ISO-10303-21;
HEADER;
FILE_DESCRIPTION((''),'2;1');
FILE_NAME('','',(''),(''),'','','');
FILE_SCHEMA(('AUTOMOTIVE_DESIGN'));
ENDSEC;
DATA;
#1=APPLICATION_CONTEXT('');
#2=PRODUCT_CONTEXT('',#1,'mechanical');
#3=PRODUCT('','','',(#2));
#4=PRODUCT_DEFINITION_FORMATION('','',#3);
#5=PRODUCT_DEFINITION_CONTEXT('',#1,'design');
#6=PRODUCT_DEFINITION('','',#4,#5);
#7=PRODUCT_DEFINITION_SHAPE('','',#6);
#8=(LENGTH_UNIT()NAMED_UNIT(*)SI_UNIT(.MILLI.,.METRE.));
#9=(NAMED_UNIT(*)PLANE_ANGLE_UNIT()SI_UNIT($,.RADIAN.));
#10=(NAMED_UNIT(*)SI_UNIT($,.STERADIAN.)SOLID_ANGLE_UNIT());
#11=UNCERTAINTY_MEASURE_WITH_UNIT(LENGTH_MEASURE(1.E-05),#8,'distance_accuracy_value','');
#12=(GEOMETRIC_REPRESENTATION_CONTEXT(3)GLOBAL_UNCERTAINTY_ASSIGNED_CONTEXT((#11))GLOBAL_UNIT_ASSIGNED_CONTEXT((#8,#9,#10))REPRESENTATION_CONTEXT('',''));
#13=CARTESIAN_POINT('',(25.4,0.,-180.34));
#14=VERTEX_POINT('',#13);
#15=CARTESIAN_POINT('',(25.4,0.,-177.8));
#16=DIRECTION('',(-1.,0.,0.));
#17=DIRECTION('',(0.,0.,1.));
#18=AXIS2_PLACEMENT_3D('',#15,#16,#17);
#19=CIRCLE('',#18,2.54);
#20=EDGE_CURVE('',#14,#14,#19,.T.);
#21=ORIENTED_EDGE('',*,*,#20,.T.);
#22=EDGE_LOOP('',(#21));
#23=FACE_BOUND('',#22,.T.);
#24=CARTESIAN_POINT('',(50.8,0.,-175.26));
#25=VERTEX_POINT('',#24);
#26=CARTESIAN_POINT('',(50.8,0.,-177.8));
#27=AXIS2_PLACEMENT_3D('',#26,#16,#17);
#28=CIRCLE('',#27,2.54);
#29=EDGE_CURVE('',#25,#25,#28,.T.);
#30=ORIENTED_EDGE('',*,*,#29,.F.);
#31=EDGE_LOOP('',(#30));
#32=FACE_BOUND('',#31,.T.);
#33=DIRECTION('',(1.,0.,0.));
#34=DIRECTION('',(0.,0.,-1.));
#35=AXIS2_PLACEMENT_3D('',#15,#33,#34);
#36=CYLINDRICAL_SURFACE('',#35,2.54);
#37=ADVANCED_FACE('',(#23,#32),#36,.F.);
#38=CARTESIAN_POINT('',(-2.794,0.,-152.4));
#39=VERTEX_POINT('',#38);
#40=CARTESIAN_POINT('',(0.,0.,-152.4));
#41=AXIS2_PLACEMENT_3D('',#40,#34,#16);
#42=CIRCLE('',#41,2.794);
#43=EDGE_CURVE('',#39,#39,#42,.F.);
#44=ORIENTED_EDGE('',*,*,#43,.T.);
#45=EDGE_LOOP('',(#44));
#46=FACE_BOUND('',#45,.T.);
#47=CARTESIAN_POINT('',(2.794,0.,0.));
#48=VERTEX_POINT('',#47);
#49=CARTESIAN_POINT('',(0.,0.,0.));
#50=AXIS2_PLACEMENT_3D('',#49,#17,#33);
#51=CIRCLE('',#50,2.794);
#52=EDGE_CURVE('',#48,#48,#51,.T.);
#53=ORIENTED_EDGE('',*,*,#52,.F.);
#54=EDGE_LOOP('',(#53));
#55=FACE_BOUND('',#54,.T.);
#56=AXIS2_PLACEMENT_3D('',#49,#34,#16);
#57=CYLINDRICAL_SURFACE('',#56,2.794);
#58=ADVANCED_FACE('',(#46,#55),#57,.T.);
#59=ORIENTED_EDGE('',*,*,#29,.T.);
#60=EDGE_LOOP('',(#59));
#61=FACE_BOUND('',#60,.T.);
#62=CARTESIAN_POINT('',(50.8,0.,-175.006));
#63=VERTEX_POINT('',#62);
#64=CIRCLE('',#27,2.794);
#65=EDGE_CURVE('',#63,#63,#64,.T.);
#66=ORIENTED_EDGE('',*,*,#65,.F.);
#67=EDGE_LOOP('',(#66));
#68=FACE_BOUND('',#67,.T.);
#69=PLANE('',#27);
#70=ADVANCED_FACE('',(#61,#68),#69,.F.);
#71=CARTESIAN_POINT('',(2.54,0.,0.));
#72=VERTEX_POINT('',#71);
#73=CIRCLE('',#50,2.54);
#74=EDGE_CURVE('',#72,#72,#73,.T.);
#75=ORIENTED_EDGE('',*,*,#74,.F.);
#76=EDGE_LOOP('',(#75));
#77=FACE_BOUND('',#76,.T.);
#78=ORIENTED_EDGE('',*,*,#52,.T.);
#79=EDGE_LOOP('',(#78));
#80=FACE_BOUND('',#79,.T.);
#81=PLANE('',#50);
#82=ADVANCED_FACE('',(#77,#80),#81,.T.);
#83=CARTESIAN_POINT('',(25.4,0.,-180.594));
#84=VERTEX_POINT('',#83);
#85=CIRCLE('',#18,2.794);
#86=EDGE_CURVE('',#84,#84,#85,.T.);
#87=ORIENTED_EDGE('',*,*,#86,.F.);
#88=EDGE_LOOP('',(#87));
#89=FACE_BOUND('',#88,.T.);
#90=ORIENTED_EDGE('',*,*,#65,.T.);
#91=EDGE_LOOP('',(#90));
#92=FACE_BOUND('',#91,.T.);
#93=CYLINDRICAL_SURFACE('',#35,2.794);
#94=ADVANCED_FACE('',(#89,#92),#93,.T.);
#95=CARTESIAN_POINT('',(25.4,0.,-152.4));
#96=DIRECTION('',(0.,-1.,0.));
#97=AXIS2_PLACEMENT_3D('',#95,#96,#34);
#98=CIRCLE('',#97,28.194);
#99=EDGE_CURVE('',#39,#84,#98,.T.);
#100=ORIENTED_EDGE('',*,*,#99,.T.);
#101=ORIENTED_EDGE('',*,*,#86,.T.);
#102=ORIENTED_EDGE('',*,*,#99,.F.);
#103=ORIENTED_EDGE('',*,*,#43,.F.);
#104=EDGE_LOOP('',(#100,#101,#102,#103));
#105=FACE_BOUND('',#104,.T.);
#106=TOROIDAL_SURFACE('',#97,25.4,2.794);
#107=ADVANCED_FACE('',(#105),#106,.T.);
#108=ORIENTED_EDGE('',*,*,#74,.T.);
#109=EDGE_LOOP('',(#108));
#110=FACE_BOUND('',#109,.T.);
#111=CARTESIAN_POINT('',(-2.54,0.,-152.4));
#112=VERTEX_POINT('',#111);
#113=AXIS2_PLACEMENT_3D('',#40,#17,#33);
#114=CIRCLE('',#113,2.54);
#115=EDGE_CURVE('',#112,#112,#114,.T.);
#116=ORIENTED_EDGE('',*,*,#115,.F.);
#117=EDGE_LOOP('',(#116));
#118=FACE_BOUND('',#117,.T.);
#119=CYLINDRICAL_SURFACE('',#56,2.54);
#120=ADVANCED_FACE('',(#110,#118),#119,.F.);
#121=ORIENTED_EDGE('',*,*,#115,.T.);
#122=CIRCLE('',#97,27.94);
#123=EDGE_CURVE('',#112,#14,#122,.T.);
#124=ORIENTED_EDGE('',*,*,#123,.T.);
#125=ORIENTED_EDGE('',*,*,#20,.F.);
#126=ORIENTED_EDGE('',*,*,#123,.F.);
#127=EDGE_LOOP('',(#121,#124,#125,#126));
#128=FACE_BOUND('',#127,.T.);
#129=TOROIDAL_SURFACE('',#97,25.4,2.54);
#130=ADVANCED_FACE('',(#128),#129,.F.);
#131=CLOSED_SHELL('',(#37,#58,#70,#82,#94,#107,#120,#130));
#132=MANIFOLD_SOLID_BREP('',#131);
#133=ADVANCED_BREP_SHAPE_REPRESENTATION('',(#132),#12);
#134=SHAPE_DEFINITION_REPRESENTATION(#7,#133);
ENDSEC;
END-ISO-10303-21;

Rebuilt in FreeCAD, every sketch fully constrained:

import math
import FreeCAD as App
import Part
import Sketcher
Q = App.Units.Quantity

doc = App.newDocument("Part")
body = doc.addObject("PartDesign::Body", "Body")

sketch1 = body.newObject("Sketcher::SketchObject", "Sketch")
sketch1.AttachmentSupport = (doc.getObject("XY_Plane"), [""])
sketch1.MapMode = "FlatFace"
sketch1.addGeometry([
    Part.Circle(App.Vector(0, 0, 0), App.Vector(0, 0, 1), 2.794),
    Part.Circle(App.Vector(0, 0, 0), App.Vector(0, 0, 1), 2.54),
], False)
sketch1.addConstraint([
    Sketcher.Constraint("Coincident", 0, 3, -1, 1),
    Sketcher.Constraint("Coincident", 1, 3, -1, 1),
    Sketcher.Constraint("Diameter", 1, Q("0.2 in")),
    Sketcher.Constraint("Diameter", 0, Q("0.22 in")),
])

sketch2 = body.newObject("Sketcher::SketchObject", "Sketch001")
sketch2.AttachmentSupport = (doc.getObject("XZ_Plane"), [""])
sketch2.MapMode = "FlatFace"
sketch2.addGeometry([
    Part.LineSegment(App.Vector(0, 0, 0), App.Vector(0, -152.4, 0)),
    Part.ArcOfCircle(Part.Circle(App.Vector(25.4, -152.4, 0), App.Vector(0, 0, 1), 25.4), math.radians(180), math.radians(270)),
    Part.LineSegment(App.Vector(25.4, -177.8, 0), App.Vector(50.8, -177.8, 0)),
], False)
sketch2.addConstraint([
    Sketcher.Constraint("Tangent", 0, 2, 1, 1),
    Sketcher.Constraint("Tangent", 1, 2, 2, 1),
    Sketcher.Constraint("Vertical", 0),
    Sketcher.Constraint("Horizontal", 2),
    Sketcher.Constraint("Coincident", 0, 1, -1, 1),
    Sketcher.Constraint("Radius", 1, Q("1 in")),
    Sketcher.Constraint("DistanceX", 2, 1, 2, 2, Q("1 in")),
    Sketcher.Constraint("DistanceY", 0, 2, 0, 1, Q("6 in")),
])
doc.recompute()

additivepipe = body.newObject("PartDesign::AdditivePipe", "AdditivePipe")
additivepipe.Profile = sketch1
additivepipe.Spine = (sketch2, ["Edge1", "Edge2", "Edge3"])

doc.recompute()
